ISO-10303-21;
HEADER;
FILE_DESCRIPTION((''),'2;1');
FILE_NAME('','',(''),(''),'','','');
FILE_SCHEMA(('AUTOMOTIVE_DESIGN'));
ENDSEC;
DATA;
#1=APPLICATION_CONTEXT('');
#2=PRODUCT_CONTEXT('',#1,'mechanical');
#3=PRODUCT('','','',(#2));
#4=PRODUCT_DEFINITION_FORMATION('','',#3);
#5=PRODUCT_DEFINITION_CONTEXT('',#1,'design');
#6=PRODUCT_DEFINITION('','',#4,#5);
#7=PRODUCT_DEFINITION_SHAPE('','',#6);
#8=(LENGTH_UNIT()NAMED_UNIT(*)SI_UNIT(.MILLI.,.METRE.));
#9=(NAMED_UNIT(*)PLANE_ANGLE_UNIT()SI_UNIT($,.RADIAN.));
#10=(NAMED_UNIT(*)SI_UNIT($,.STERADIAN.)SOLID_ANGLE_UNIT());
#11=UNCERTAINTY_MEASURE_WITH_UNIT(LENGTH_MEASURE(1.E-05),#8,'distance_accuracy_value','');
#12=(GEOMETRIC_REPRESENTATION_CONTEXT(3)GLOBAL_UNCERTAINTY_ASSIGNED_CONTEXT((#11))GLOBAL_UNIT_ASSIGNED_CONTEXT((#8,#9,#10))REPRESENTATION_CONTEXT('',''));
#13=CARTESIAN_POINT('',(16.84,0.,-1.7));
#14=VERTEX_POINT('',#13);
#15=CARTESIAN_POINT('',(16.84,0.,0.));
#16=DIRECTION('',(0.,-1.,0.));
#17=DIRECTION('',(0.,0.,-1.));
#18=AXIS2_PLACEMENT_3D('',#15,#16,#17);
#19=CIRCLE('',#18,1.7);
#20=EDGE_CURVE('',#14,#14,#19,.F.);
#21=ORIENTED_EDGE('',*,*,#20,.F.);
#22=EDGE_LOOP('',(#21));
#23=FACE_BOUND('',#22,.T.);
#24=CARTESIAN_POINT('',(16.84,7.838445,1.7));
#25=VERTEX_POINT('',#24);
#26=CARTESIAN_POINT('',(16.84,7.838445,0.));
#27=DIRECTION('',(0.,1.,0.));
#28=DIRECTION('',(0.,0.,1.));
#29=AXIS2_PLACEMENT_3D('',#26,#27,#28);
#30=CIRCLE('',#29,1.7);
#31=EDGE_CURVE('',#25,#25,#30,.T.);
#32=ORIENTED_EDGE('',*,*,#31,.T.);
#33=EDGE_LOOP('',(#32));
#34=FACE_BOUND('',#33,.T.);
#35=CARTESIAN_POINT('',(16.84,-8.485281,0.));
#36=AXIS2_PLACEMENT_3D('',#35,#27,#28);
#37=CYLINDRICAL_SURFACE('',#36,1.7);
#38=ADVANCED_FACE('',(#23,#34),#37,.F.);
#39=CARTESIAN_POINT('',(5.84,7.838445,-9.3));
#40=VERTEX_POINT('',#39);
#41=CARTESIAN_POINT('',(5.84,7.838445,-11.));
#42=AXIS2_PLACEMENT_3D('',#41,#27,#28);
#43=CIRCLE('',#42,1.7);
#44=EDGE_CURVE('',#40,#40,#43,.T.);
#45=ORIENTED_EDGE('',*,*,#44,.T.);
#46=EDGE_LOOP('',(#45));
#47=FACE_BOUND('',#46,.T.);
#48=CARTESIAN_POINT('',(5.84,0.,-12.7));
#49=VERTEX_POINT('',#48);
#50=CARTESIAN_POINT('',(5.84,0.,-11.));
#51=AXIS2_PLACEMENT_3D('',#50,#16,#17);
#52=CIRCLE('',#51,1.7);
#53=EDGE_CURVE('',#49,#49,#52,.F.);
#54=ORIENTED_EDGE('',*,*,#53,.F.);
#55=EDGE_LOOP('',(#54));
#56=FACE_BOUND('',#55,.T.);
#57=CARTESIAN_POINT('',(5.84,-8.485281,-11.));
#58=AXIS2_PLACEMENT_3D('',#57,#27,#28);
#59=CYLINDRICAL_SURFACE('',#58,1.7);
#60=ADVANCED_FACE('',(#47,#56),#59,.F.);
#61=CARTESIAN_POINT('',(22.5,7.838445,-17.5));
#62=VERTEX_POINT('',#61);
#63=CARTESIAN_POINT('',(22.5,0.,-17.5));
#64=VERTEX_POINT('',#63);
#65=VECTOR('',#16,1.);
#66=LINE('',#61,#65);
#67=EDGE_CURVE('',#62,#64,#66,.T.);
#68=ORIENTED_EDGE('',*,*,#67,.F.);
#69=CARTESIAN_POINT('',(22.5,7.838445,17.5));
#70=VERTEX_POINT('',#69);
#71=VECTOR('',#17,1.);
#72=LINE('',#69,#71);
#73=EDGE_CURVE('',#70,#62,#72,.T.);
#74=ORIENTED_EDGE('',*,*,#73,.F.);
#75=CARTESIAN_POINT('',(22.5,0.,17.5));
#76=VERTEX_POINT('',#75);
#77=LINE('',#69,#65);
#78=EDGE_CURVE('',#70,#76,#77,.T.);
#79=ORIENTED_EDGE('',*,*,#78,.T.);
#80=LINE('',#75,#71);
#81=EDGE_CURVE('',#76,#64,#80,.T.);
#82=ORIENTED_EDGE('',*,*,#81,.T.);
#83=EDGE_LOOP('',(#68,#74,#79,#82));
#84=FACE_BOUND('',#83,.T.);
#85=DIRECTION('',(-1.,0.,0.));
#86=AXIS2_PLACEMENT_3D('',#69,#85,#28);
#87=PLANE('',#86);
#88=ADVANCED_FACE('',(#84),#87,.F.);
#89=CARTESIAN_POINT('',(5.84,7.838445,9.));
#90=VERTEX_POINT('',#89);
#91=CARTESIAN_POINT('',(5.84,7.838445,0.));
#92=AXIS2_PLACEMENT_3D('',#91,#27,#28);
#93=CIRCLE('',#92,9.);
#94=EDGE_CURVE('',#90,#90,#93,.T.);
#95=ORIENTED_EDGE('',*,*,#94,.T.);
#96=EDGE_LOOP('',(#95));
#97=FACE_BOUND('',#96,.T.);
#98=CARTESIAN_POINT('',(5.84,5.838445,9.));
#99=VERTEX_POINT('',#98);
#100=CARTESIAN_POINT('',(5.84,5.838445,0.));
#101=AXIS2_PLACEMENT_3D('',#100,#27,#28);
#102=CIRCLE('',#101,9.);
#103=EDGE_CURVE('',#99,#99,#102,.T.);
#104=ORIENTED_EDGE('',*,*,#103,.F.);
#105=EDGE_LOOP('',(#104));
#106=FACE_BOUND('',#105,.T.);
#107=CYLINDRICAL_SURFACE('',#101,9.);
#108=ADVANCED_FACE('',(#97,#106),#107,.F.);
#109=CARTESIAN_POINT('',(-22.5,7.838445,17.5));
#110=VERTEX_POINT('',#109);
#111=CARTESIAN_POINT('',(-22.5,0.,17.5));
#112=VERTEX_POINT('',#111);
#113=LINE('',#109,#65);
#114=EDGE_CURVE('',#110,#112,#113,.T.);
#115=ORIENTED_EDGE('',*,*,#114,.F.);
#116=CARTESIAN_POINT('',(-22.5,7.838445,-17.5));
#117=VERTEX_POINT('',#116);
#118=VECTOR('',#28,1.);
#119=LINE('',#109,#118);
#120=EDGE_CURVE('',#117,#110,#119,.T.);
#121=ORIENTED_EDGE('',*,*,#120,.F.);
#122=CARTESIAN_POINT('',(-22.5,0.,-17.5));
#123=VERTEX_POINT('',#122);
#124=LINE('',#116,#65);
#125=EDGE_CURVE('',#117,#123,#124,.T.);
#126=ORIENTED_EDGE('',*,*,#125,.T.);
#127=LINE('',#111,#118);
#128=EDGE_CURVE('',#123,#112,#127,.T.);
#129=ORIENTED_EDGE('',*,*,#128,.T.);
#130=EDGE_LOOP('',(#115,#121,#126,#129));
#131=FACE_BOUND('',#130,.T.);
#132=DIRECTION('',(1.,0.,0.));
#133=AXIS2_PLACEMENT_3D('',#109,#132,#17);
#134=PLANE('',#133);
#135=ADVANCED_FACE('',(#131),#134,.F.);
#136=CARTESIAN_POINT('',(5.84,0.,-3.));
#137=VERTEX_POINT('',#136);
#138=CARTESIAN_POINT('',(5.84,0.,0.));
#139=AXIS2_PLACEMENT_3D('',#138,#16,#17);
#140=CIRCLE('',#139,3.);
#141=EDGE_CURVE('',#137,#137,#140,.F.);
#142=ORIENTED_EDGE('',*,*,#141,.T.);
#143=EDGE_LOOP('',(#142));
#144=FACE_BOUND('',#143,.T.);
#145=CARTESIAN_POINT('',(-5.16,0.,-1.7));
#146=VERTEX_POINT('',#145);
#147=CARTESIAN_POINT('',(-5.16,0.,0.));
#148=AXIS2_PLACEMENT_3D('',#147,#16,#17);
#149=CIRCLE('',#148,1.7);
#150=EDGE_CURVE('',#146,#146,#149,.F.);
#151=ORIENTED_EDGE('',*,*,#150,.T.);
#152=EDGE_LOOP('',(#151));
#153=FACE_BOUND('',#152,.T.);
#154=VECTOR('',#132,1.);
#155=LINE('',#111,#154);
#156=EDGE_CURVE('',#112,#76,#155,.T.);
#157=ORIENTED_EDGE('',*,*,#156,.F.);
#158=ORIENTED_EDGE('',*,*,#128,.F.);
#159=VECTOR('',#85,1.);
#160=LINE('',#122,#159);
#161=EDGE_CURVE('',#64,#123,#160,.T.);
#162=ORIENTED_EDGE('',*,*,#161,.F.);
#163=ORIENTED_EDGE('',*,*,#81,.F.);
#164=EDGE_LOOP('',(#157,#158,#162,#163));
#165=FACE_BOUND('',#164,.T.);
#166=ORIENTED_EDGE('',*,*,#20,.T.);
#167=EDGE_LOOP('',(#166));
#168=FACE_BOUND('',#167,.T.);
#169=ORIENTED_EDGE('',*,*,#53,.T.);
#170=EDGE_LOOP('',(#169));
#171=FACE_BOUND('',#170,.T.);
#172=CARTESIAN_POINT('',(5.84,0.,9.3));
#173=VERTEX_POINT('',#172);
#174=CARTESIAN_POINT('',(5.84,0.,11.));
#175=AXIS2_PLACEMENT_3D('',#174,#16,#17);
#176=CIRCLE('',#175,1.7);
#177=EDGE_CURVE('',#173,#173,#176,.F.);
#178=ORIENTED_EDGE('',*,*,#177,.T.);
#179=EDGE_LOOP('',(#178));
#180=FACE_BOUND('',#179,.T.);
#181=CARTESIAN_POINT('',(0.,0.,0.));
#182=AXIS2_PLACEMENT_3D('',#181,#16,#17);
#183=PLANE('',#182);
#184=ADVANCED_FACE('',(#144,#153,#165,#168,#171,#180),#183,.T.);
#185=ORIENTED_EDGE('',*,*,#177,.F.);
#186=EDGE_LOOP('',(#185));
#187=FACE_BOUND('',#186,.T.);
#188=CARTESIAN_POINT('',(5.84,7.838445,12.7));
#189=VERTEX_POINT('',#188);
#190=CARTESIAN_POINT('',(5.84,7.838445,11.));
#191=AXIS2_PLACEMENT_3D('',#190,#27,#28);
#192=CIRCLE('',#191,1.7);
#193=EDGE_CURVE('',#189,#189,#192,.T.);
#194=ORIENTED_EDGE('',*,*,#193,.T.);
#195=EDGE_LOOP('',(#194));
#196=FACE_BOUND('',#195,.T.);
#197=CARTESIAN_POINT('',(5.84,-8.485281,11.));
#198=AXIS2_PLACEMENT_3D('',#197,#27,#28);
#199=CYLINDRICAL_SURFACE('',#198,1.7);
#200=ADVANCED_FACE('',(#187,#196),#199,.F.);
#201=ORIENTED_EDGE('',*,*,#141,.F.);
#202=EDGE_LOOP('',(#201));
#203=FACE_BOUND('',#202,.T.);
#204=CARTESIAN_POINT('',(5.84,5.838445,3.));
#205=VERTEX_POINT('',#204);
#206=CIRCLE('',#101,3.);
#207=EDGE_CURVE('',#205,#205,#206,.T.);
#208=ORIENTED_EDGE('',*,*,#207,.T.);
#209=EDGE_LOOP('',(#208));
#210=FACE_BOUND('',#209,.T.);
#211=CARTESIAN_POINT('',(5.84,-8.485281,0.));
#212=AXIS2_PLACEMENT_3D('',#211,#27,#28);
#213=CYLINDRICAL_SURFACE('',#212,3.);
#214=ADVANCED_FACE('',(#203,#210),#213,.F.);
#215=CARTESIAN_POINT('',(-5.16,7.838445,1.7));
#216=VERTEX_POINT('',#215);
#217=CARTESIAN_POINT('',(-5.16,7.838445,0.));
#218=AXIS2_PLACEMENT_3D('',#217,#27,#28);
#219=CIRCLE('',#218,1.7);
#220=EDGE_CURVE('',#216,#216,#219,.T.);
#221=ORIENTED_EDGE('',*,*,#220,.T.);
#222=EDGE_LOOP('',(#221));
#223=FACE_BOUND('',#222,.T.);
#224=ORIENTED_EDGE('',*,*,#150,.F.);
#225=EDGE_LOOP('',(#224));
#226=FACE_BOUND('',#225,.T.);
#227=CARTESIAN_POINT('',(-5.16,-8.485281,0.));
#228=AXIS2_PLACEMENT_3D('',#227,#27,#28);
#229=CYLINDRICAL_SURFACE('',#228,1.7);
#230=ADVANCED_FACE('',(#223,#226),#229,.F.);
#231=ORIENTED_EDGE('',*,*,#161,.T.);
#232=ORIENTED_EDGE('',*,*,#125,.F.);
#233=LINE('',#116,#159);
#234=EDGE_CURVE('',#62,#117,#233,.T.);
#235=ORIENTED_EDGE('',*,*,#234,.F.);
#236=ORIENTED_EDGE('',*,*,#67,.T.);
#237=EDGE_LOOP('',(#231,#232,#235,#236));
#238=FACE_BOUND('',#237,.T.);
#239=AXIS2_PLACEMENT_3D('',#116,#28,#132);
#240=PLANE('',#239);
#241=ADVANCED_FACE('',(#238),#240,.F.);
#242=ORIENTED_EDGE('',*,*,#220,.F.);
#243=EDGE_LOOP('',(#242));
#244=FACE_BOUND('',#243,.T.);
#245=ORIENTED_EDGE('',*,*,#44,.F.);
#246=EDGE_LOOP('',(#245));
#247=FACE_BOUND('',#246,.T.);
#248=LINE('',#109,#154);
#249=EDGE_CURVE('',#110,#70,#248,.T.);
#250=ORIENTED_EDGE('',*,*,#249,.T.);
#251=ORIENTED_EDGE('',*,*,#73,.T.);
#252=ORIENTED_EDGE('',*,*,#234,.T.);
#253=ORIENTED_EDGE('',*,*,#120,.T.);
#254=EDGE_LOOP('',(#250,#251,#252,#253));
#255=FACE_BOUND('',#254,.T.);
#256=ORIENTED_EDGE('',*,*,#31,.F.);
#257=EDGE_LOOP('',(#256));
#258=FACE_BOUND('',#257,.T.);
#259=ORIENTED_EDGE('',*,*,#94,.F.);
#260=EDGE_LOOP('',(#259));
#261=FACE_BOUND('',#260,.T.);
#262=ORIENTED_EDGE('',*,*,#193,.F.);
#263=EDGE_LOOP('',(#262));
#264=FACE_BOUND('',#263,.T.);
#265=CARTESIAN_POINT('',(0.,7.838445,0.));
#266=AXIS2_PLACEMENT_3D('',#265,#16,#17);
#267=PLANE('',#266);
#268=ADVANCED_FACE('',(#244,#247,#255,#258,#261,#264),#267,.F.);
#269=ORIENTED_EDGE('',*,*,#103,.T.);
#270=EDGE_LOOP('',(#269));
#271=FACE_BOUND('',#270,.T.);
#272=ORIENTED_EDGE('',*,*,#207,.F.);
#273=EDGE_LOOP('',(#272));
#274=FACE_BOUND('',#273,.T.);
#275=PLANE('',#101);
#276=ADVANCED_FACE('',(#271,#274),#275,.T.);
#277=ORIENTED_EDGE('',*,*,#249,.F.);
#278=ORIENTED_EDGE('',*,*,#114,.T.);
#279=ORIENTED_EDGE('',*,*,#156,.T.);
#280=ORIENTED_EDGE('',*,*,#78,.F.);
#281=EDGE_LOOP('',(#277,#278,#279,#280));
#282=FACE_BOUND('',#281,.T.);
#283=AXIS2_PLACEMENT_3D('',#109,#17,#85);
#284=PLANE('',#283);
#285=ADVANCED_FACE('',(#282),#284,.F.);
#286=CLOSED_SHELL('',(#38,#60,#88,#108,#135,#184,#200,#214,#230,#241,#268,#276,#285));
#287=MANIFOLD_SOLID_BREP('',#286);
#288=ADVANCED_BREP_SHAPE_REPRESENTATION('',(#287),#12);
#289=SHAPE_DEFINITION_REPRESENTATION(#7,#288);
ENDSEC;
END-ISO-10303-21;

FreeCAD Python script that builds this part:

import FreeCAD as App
import Part
import Sketcher
from FreeCAD import Vector


def add_polygon(sketch, points):
    """Adds a closed chain of lines whose ends are joined by coincident constraints."""
    first, n = sketch.GeometryCount, len(points)
    for a, b in zip(points, points[1:] + points[:1]):
        sketch.addGeometry(Part.LineSegment(App.Vector(*a, 0), App.Vector(*b, 0)), False)
    for i in range(n):
        sketch.addConstraint(Sketcher.Constraint("Coincident", first + i, 2, first + (i + 1) % n, 1))

doc = App.newDocument("Part")
body = doc.addObject("PartDesign::Body", "Body")

# Sketch on XZ plane
sketch1 = doc.addObject("Sketcher::SketchObject", "Sketch")
body.addObject(sketch1)
sketch1.AttachmentSupport = (doc.XZ_Plane, [""])
sketch1.MapMode = "FlatFace"
add_polygon(sketch1, [(-22, -18), (-22, 18), (22, 18), (22, -18)])  # lines 0-3
sketch1.addConstraint([
    Sketcher.Constraint("Vertical", 0),
    Sketcher.Constraint("Horizontal", 1),
    Sketcher.Constraint("Vertical", 2),
    Sketcher.Constraint("Horizontal", 3),
    Sketcher.Constraint("Symmetric", 0, 2, 2, 2, -1, 1),
    Sketcher.Constraint("DistanceX", 1, 1, 1, 2, 45.0),
    Sketcher.Constraint("DistanceY", 0, 1, 0, 2, 35.0),
])
pad1 = doc.addObject("PartDesign::Pad", "Pad")
body.addObject(pad1)
pad1.Profile = sketch1
pad1.Length = 7.838445
pad1.Reversed = True

# Sketch on XZ plane
sketch2 = doc.addObject("Sketcher::SketchObject", "Sketch001")
body.addObject(sketch2)
sketch2.AttachmentSupport = (doc.XZ_Plane, [""])
sketch2.MapMode = "FlatFace"
sketch2.AttachmentOffset = App.Placement(Vector(0, 0, -7.838445), App.Rotation())
sketch2.addGeometry(Part.Circle(Vector(6, 0, 0), Vector(0, 0, 1), 9), False)
sketch2.addConstraint([
    Sketcher.Constraint("PointOnObject", 0, 3, -1),
    Sketcher.Constraint("Diameter", 0, 18.0),
    Sketcher.Constraint("DistanceX", -1, 1, 0, 3, 5.84),
])
pocket1 = doc.addObject("PartDesign::Pocket", "Pocket")
body.addObject(pocket1)
pocket1.Profile = sketch2
pocket1.Length = 2
pocket1.Reversed = True

# Sketch on XZ plane
sketch3 = doc.addObject("Sketcher::SketchObject", "Sketch002")
body.addObject(sketch3)
sketch3.AttachmentSupport = (doc.XZ_Plane, [""])
sketch3.MapMode = "FlatFace"
sketch3.AttachmentOffset = App.Placement(Vector(0, 0, -7.838445), App.Rotation())
sketch3.addGeometry([
    Part.Circle(Vector(5.8, -11, 0), Vector(0, 0, 1), 1.7),  # 0
    Part.Circle(Vector(16.8, 0, 0), Vector(0, 0, 1), 1.7),  # 1
    Part.Circle(Vector(5.8, 11, 0), Vector(0, 0, 1), 1.7),  # 2
    Part.Circle(Vector(-5.2, 0, 0), Vector(0, 0, 1), 1.7),  # 3
    Part.Circle(Vector(5.8, 0, 0), Vector(0, 0, 1), 3),  # 4
], False)
sketch3.addConstraint([
    Sketcher.Constraint("Equal", 0, 1),
    Sketcher.Constraint("Equal", 1, 2),
    Sketcher.Constraint("Equal", 2, 3),
    Sketcher.Constraint("Symmetric", 0, 3, 2, 3, -1),
    Sketcher.Constraint("PointOnObject", 1, 3, -1),
    Sketcher.Constraint("PointOnObject", 3, 3, -1),
    Sketcher.Constraint("PointOnObject", 4, 3, -1),
    Sketcher.Constraint("Vertical", 2, 3, 4, 3),
    Sketcher.Constraint("Diameter", 4, 6.0),
    Sketcher.Constraint("Diameter", 0, 3.4),
    Sketcher.Constraint("DistanceY", 0, 3, -1, 1, 11.0),
    Sketcher.Constraint("DistanceX", 0, 3, 1, 3, 11.0),
    Sketcher.Constraint("DistanceX", 3, 3, 0, 3, 11.0),
    Sketcher.Constraint("DistanceX", -1, 1, 0, 3, 5.84),
])
pocket2 = doc.addObject("PartDesign::Pocket", "Pocket001")
body.addObject(pocket2)
pocket2.Profile = sketch3
pocket2.Length = 7.838445
pocket2.Reversed = True

doc.recompute()
